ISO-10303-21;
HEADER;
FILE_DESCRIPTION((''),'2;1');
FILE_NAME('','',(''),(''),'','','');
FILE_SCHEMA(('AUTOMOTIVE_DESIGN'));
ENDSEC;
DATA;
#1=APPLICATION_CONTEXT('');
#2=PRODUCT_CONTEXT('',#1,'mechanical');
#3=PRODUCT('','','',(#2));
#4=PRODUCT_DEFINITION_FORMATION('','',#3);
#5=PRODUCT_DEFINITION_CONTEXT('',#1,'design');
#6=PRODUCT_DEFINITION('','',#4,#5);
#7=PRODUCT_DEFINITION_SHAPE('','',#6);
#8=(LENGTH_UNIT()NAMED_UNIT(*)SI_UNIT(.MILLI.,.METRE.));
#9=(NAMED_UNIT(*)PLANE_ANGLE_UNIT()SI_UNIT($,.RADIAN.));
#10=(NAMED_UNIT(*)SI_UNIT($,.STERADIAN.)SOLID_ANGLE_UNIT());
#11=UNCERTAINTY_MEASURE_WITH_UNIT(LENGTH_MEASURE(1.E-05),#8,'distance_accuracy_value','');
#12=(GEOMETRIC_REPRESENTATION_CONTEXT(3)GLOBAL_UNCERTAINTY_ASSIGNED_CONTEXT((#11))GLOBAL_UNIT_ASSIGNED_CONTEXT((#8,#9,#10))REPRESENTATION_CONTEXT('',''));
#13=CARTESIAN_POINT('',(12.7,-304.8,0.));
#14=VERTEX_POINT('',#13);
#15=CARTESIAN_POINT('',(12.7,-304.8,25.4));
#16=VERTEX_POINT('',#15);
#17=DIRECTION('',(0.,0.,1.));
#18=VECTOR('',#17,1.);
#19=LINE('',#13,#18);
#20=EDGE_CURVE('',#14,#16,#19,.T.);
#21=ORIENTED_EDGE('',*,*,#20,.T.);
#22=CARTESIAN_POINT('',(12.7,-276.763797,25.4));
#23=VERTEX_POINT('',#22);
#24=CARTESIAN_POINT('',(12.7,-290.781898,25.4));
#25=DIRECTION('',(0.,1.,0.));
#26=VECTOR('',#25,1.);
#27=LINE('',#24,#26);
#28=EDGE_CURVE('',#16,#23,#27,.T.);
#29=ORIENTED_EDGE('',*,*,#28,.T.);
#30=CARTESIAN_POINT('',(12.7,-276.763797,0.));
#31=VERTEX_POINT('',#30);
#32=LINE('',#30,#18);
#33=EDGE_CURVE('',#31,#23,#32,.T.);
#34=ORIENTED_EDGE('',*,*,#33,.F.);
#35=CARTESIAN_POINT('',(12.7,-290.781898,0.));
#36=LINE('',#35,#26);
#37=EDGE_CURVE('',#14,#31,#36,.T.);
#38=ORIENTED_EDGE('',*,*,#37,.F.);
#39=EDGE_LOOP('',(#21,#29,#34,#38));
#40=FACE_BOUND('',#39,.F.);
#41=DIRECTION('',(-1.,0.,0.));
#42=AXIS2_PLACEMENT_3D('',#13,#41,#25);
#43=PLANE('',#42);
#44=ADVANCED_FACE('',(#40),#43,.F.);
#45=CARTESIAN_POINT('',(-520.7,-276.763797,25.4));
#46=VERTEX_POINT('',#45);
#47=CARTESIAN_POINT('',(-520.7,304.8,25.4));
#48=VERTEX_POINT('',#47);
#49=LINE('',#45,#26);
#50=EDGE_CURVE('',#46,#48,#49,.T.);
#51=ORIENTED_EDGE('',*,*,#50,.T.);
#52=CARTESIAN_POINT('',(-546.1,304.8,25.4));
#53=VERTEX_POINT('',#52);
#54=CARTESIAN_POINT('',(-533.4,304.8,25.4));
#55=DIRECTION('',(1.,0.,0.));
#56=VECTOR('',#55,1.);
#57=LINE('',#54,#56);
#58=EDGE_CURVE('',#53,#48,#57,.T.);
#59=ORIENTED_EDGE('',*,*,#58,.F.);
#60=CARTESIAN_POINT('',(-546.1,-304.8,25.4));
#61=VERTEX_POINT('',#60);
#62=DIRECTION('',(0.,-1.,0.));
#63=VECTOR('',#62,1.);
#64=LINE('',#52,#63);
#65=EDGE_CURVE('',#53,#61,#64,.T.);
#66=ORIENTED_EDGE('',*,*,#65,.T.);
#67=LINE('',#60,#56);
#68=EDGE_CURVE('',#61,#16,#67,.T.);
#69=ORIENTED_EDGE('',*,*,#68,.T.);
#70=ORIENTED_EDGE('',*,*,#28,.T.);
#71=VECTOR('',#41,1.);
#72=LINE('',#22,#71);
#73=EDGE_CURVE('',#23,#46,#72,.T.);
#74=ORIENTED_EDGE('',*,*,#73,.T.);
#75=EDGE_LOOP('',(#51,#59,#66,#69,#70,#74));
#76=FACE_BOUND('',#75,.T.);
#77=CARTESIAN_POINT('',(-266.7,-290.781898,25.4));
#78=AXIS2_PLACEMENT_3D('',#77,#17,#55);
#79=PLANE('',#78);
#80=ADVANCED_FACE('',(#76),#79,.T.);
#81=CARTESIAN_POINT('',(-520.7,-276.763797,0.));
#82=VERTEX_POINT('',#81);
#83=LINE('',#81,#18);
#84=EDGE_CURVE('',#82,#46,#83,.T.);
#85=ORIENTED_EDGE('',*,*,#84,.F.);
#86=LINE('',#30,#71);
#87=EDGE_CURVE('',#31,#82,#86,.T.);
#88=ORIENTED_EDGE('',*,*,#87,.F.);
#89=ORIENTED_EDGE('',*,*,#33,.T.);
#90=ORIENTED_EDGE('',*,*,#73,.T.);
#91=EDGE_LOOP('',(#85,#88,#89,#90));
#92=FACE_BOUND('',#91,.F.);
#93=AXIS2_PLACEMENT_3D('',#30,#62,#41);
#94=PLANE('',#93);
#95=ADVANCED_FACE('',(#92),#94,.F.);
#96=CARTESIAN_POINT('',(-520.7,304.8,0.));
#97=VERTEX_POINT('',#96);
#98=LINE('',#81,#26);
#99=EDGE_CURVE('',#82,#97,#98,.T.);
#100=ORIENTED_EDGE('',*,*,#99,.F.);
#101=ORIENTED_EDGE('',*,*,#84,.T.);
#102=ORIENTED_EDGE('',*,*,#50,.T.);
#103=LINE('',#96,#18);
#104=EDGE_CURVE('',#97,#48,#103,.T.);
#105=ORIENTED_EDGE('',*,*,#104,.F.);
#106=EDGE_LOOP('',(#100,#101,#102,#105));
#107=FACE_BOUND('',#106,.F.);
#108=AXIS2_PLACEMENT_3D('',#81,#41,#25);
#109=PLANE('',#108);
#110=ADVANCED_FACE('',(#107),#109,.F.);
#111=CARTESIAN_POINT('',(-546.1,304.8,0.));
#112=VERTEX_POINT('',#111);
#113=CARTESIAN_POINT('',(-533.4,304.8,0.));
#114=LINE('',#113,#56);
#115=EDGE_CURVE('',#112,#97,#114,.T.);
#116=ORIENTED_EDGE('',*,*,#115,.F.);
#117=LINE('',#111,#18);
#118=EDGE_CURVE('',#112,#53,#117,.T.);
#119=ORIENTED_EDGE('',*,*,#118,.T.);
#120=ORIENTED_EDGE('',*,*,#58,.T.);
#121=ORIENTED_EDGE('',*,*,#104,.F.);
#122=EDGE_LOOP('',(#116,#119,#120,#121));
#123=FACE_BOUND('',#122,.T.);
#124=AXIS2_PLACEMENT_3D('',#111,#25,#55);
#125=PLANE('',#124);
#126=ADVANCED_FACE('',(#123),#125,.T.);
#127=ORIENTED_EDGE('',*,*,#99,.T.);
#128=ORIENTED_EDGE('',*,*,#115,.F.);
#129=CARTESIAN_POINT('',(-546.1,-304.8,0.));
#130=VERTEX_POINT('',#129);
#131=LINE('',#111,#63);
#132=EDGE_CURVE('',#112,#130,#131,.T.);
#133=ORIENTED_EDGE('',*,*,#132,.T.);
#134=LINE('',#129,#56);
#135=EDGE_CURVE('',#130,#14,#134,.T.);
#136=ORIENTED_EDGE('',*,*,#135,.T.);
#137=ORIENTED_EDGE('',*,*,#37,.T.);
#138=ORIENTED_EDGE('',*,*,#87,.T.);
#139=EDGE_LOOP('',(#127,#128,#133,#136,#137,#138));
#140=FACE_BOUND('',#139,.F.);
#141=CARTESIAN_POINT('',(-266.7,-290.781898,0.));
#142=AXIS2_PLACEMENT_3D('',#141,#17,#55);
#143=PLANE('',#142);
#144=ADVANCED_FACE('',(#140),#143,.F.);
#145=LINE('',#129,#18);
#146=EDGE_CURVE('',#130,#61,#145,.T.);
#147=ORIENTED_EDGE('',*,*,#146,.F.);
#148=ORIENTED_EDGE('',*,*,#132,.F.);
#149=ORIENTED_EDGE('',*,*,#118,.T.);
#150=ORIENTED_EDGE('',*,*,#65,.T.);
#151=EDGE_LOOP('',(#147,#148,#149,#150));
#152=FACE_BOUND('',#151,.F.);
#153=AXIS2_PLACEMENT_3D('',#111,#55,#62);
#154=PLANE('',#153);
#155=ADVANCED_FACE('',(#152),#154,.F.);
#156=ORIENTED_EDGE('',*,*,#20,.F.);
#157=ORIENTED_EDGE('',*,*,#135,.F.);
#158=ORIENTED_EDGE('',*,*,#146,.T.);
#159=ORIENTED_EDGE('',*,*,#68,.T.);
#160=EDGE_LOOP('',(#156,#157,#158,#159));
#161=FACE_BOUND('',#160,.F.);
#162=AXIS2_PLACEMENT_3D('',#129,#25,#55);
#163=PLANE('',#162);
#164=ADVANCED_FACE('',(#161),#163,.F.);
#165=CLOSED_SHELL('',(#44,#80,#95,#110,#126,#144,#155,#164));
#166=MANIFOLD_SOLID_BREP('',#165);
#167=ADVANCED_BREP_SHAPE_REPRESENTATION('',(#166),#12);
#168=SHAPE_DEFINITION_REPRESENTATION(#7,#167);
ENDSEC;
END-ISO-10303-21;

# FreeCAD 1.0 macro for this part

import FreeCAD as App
import Part
import Sketcher
Q = App.Units.Quantity

doc = App.newDocument("Part")
body = doc.addObject("PartDesign::Body", "Body")

sketch1 = doc.addObject("Sketcher::SketchObject", "Sketch")
body.addObject(sketch1)
sketch1.AttachmentSupport = (doc.XY_Plane, [""])
sketch1.MapMode = "FlatFace"
sketch1.addGeometry(Part.LineSegment(App.Vector(-546, -305, 0), App.Vector(13, -305, 0)), False)
sketch1.addGeometry(Part.LineSegment(App.Vector(13, -305, 0), App.Vector(13, -277, 0)), False)
sketch1.addGeometry(Part.LineSegment(App.Vector(13, -277, 0), App.Vector(-521, -277, 0)), False)
sketch1.addGeometry(Part.LineSegment(App.Vector(-521, -277, 0), App.Vector(-521, 305, 0)), False)
sketch1.addGeometry(Part.LineSegment(App.Vector(-521, 305, 0), App.Vector(-546, 305, 0)), False)
sketch1.addGeometry(Part.LineSegment(App.Vector(-546, 305, 0), App.Vector(-546, -305, 0)), False)
sketch1.addConstraint(Sketcher.Constraint("Coincident", 0, 2, 1, 1))
sketch1.addConstraint(Sketcher.Constraint("Coincident", 1, 2, 2, 1))
sketch1.addConstraint(Sketcher.Constraint("Coincident", 2, 2, 3, 1))
sketch1.addConstraint(Sketcher.Constraint("Coincident", 3, 2, 4, 1))
sketch1.addConstraint(Sketcher.Constraint("Coincident", 4, 2, 5, 1))
sketch1.addConstraint(Sketcher.Constraint("Coincident", 5, 2, 0, 1))
sketch1.addConstraint(Sketcher.Constraint("Horizontal", 0))
sketch1.addConstraint(Sketcher.Constraint("Vertical", 1))
sketch1.addConstraint(Sketcher.Constraint("Horizontal", 2))
sketch1.addConstraint(Sketcher.Constraint("Vertical", 3))
sketch1.addConstraint(Sketcher.Constraint("Horizontal", 4))
sketch1.addConstraint(Sketcher.Constraint("Vertical", 5))
sketch1.addConstraint(Sketcher.Constraint("DistanceX", 0, 1, 0, 2, Q("22 in")))
sketch1.addConstraint(Sketcher.Constraint("DistanceX", 2, 2, 2, 1, Q("21 in")))
sketch1.addConstraint(Sketcher.Constraint("DistanceY", 5, 2, 5, 1, Q("24 in")))
sketch1.addConstraint(Sketcher.Constraint("DistanceY", 0, 2, -1, 1, Q("12 in")))
sketch1.addConstraint(Sketcher.Constraint("DistanceX", -1, 1, 0, 2, Q("0.5 in")))
sketch1.addConstraint(Sketcher.Constraint("DistanceY", 1, 1, 1, 2, Q("28.036203 mm")))
pad1 = doc.addObject("PartDesign::Pad", "Pad")
body.addObject(pad1)
pad1.Profile = sketch1
pad1.Length = Q("1 in")

doc.recompute()
